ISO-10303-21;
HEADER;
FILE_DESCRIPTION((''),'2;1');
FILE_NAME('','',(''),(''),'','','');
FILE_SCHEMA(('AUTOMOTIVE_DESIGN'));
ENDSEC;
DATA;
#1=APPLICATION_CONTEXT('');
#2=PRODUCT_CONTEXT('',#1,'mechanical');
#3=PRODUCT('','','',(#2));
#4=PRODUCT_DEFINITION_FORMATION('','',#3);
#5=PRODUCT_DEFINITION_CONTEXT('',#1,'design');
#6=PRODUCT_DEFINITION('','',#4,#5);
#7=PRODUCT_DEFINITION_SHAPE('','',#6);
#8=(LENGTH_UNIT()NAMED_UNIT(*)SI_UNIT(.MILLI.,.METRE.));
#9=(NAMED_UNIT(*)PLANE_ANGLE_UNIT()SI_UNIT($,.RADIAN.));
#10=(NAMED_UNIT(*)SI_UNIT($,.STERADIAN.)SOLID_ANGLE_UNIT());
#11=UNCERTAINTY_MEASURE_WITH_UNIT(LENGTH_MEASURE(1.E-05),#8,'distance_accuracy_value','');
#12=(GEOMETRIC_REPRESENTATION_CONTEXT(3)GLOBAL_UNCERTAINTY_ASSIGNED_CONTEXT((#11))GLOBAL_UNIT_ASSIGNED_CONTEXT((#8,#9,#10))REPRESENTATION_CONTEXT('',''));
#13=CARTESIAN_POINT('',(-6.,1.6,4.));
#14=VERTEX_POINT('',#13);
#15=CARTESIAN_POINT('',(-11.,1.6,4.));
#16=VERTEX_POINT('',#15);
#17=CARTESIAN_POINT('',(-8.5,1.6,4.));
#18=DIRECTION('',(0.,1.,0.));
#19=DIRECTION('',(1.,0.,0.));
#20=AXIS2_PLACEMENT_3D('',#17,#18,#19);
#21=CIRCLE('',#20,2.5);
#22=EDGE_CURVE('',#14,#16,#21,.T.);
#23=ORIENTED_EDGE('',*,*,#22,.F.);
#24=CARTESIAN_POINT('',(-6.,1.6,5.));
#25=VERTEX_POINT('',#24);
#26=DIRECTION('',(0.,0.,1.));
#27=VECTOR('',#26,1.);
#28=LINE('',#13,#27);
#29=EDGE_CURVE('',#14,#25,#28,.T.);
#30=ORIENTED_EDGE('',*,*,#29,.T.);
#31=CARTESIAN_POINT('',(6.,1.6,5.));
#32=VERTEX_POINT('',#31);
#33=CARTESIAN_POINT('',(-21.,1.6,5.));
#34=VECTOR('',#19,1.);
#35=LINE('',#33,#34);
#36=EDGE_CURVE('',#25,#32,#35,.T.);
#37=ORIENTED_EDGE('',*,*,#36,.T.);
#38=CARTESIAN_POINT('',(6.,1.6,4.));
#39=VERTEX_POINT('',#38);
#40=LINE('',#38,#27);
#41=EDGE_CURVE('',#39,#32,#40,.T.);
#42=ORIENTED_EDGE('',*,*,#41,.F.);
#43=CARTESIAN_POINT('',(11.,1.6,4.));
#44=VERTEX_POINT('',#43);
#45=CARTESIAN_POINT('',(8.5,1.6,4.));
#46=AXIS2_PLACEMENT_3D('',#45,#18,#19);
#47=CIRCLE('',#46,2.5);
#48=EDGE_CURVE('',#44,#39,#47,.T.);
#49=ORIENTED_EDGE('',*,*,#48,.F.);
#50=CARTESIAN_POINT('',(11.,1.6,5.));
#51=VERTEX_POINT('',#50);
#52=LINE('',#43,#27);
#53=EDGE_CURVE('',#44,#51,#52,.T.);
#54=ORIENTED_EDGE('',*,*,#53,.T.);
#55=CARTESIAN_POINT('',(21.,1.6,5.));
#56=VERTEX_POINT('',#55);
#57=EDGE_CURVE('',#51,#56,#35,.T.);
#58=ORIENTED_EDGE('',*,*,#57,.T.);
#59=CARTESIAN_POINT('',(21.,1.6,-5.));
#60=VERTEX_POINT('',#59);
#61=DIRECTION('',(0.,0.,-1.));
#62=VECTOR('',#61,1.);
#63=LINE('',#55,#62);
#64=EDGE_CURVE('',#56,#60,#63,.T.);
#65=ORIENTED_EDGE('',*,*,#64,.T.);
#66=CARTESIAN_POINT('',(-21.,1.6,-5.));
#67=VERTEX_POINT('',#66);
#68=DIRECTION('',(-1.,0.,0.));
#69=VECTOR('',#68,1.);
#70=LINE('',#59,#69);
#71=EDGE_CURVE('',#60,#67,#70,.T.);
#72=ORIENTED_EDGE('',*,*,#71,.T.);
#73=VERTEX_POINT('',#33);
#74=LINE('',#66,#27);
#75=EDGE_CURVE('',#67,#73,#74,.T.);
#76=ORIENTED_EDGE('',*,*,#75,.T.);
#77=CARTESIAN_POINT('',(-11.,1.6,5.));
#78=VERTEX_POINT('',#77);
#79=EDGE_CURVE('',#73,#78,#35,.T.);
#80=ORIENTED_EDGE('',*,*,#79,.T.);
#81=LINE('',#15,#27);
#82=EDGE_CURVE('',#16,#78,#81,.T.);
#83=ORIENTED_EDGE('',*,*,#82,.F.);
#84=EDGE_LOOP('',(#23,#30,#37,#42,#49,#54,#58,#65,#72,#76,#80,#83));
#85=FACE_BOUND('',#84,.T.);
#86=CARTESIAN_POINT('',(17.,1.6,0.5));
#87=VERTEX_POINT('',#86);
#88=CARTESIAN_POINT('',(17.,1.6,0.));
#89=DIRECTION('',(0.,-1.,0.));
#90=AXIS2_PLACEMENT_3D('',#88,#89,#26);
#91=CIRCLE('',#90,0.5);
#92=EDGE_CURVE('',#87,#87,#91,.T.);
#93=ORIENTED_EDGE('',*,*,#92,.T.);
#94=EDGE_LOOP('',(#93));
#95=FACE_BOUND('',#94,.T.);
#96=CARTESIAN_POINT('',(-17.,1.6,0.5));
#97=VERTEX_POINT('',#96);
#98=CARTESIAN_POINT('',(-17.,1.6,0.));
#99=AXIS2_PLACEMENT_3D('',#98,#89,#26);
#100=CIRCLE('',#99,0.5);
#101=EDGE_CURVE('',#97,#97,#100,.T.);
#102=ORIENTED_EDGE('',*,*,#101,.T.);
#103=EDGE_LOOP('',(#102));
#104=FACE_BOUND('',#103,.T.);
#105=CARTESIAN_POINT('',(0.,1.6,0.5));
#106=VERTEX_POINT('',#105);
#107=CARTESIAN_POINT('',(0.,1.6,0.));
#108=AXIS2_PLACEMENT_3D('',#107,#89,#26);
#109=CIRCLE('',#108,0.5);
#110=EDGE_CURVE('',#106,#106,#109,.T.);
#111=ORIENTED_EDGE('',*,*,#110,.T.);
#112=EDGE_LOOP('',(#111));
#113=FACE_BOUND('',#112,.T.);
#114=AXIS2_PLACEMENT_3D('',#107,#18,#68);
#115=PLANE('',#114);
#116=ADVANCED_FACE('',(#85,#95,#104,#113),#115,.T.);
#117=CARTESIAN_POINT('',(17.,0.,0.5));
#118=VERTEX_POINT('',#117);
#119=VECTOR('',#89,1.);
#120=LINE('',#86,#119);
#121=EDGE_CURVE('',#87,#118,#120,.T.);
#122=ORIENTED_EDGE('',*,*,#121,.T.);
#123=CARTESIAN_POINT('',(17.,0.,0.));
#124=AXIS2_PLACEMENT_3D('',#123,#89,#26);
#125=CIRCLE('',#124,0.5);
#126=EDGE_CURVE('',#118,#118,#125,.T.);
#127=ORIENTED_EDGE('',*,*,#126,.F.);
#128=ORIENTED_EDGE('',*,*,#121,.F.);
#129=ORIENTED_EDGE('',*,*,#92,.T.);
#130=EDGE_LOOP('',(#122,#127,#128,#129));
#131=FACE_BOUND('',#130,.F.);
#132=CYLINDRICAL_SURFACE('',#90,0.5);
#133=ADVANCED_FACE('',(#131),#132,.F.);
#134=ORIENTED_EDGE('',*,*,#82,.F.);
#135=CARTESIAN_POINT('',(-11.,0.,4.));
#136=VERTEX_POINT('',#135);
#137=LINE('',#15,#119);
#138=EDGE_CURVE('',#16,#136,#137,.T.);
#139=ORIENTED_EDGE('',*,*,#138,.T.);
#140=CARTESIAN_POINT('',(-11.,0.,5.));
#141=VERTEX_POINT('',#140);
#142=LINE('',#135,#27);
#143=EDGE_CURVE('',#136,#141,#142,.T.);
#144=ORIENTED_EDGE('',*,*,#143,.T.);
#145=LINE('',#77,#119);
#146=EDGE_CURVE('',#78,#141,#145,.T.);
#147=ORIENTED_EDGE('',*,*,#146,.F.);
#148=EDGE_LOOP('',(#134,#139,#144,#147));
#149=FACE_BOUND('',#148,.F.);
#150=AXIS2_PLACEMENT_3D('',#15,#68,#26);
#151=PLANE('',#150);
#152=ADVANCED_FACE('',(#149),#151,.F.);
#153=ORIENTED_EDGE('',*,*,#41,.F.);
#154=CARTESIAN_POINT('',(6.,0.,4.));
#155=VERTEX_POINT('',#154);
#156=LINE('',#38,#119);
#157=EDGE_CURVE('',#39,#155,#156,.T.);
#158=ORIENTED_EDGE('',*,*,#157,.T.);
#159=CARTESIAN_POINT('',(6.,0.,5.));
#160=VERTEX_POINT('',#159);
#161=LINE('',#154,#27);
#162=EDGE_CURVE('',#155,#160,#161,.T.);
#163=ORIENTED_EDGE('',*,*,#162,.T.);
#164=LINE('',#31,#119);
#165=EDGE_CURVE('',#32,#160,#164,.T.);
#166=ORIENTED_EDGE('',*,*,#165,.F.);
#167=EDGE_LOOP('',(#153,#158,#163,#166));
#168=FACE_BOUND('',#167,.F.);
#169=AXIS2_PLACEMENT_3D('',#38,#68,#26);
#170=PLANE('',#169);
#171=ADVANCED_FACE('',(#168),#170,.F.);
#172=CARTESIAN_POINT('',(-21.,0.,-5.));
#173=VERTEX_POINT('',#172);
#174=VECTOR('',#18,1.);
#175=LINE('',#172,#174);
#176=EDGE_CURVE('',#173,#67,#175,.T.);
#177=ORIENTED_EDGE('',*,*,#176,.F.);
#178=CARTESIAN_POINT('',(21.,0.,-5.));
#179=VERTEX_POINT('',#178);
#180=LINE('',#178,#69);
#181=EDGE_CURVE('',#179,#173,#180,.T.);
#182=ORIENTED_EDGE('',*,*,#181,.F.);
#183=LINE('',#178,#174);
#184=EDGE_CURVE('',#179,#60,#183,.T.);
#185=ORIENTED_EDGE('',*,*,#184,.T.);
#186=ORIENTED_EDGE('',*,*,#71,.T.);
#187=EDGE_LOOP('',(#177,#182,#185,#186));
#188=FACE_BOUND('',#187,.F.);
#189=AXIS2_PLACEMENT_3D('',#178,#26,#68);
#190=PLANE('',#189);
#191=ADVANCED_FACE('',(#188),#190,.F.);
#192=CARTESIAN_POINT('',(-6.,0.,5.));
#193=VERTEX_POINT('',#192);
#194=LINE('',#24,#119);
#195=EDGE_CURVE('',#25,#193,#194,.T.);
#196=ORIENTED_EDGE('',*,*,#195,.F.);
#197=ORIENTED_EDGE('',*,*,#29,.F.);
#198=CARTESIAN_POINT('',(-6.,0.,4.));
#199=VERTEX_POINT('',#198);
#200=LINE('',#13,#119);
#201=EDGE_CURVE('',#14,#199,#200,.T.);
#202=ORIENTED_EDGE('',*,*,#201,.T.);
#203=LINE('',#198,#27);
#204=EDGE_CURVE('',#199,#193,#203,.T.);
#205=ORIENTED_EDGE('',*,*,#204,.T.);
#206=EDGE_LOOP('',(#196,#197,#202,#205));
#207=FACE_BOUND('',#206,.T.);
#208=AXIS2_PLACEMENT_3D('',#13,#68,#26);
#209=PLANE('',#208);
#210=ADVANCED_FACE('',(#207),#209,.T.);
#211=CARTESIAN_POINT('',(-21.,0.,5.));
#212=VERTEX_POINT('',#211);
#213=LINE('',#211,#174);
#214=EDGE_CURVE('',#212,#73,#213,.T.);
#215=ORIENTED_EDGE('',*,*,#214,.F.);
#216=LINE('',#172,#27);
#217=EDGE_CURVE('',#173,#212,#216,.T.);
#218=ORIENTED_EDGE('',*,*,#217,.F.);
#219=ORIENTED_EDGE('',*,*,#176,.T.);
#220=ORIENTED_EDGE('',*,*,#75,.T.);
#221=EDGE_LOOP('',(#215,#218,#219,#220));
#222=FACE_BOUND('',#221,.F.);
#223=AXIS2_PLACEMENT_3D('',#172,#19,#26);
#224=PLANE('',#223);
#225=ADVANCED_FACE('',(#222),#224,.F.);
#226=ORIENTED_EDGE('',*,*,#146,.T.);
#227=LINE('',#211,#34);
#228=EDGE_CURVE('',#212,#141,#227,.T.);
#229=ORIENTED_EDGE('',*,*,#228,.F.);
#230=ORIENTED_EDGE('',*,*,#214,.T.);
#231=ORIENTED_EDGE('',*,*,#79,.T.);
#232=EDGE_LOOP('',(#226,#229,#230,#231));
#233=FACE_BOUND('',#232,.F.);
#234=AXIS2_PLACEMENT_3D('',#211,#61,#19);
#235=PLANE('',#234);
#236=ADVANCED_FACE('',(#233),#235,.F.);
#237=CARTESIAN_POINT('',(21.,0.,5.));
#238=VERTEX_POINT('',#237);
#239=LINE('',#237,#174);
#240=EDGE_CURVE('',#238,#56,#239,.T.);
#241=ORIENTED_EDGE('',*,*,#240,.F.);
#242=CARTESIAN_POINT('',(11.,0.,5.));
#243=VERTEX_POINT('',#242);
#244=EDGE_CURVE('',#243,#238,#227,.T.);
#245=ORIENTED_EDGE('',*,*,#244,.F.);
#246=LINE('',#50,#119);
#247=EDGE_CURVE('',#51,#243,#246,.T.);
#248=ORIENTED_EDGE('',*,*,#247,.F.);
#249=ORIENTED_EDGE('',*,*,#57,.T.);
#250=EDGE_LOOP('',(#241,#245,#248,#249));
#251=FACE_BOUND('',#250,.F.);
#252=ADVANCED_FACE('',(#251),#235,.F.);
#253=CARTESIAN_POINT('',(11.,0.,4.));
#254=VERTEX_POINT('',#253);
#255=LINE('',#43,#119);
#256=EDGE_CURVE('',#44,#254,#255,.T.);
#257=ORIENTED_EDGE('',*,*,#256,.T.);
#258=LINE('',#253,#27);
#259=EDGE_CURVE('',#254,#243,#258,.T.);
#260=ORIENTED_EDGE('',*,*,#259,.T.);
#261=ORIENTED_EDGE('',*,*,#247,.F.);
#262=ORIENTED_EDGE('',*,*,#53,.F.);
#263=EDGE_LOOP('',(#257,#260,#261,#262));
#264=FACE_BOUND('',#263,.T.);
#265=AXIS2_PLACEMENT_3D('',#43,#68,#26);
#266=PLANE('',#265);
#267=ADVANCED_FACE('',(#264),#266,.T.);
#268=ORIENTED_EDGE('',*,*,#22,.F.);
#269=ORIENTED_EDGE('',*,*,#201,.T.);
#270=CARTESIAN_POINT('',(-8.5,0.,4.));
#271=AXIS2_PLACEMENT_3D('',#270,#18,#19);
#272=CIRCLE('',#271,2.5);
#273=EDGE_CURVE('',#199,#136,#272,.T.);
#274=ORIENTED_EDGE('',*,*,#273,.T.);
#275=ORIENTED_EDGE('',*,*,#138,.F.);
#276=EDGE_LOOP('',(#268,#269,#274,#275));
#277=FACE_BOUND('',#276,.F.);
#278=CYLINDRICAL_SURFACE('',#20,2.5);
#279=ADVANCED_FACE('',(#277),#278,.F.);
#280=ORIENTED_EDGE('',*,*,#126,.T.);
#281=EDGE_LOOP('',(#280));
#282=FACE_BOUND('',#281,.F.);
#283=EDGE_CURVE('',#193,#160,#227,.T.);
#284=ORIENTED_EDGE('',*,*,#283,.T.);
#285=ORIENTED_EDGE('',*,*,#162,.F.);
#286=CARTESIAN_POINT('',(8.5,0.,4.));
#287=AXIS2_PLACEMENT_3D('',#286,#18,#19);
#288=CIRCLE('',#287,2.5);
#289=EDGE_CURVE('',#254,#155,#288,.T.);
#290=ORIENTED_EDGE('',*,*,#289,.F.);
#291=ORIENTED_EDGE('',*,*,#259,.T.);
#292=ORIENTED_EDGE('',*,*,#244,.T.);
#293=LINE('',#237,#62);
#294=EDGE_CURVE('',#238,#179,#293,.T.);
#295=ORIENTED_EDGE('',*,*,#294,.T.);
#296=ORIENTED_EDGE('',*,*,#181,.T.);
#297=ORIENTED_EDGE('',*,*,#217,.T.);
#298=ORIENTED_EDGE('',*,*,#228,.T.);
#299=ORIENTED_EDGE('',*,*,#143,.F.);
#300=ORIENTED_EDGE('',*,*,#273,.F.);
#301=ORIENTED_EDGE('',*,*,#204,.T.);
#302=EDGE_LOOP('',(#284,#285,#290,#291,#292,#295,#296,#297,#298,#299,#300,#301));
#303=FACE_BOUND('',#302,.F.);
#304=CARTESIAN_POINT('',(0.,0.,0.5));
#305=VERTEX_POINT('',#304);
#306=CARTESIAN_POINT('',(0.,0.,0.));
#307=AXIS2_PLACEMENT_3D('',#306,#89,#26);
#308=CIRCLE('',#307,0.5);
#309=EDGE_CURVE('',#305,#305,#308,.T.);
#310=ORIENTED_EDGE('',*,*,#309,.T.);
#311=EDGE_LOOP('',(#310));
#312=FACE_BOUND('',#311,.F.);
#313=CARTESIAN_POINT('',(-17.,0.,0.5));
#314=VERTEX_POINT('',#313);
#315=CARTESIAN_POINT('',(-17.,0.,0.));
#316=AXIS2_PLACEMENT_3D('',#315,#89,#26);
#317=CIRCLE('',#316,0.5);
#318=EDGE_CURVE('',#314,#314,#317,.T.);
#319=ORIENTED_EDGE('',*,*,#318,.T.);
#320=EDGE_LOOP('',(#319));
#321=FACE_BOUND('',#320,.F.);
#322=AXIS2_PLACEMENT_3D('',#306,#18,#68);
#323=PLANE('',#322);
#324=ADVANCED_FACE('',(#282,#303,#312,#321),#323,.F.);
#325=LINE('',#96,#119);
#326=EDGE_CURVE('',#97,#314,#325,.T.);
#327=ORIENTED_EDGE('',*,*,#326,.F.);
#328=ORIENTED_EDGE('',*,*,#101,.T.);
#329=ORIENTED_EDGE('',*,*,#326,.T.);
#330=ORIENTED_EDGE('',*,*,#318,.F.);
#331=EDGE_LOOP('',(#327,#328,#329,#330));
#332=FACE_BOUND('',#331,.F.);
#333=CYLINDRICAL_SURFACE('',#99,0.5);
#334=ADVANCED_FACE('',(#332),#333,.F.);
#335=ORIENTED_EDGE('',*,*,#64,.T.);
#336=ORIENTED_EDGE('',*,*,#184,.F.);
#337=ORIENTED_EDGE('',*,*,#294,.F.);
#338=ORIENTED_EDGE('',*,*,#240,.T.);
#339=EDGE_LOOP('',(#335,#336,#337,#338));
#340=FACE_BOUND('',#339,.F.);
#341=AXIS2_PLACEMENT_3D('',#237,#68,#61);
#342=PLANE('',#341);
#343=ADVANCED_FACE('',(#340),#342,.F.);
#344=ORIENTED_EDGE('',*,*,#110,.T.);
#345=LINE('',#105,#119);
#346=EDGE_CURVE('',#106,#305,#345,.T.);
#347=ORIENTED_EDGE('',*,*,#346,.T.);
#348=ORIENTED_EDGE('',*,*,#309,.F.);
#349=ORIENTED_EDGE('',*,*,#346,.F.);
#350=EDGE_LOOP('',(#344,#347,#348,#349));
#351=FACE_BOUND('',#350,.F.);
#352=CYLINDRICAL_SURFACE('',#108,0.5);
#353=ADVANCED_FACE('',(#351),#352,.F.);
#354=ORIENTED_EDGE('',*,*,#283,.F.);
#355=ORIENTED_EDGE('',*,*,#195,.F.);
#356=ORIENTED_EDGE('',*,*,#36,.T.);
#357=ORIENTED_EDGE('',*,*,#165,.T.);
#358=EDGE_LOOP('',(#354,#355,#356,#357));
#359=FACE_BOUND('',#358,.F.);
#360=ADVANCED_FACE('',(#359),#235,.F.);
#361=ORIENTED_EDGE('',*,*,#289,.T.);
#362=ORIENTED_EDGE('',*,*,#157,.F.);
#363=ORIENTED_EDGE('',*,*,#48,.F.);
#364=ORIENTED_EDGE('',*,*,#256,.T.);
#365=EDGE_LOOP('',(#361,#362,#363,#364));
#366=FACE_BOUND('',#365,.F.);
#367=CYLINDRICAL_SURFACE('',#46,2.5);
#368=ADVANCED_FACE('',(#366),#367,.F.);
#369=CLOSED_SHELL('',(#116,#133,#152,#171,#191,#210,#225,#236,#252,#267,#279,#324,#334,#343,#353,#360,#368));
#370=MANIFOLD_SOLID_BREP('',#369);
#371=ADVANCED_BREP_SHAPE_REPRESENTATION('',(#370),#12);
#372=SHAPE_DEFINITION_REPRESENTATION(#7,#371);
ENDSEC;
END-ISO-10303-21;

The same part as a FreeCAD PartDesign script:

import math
import FreeCAD as App
import Part
import Sketcher
from FreeCAD import Vector
Q = App.Units.Quantity


def add_polygon(sketch, points):
    """Adds a closed chain of lines whose ends are joined by coincident constraints."""
    first, n = sketch.GeometryCount, len(points)
    for a, b in zip(points, points[1:] + points[:1]):
        sketch.addGeometry(Part.LineSegment(App.Vector(*a, 0), App.Vector(*b, 0)), False)
    for i in range(n):
        sketch.addConstraint(Sketcher.Constraint("Coincident", first + i, 2, first + (i + 1) % n, 1))

doc = App.newDocument("Part")
params = doc.addObject("Spreadsheet::Sheet", "Params")
for row, (alias, value) in enumerate([
    ("sketch1_width", "42 mm"),
    ("sketch1_height", "10 mm"),
    ("pad1_length", "1.6 mm"),
    ("sketch2_diameter", "1 mm"),
    ("hole_diameter", "1 mm"),
    ("sketch3_radius", "2.5 mm"),
    ("sketch3_height", "1 mm"),
    ("pocket1_length", "1.6 mm"),
], start=1):
    params.set(f"A{row}", alias)
    params.set(f"B{row}", "=" + value)
    params.setAlias(f"B{row}", alias)

body = doc.addObject("PartDesign::Body", "Body")

# Sketch on XZ plane
sketch1 = doc.addObject("Sketcher::SketchObject", "Sketch")
body.addObject(sketch1)
sketch1.AttachmentSupport = (doc.XZ_Plane, [""])
sketch1.MapMode = "FlatFace"
add_polygon(sketch1, [(-21, -5), (-21, 5), (21, 5), (21, -5)])  # lines 0-3
sketch1.addConstraint(Sketcher.Constraint("Vertical", 0))
sketch1.addConstraint(Sketcher.Constraint("Horizontal", 1))
sketch1.addConstraint(Sketcher.Constraint("Vertical", 2))
sketch1.addConstraint(Sketcher.Constraint("Horizontal", 3))
sketch1.addConstraint(Sketcher.Constraint("Symmetric", 0, 2, 2, 2, -1, 1))
sketch1.addConstraint(Sketcher.Constraint("DistanceX", 1, 1, 1, 2, Q("42 mm")))
sketch1.addConstraint(Sketcher.Constraint("DistanceY", 0, 1, 0, 2, Q("10 mm")))
sketch1.setExpression("Constraints[9]", "Params.sketch1_width")
sketch1.setExpression("Constraints[10]", "Params.sketch1_height")
pad1 = doc.addObject("PartDesign::Pad", "Pad")
body.addObject(pad1)
pad1.Profile = sketch1
pad1.setExpression("Length", "Params.pad1_length")
pad1.Reversed = True

# Sketch on XZ plane
sketch2 = doc.addObject("Sketcher::SketchObject", "Sketch001")
body.addObject(sketch2)
sketch2.AttachmentSupport = (doc.XZ_Plane, [""])
sketch2.MapMode = "FlatFace"
sketch2.AttachmentOffset = App.Placement(Vector(0, 0, -1.6), App.Rotation())
sketch2.addGeometry(Part.Circle(Vector(-17, 0, 0), Vector(0, 0, 1), 0.5), False)
sketch2.addGeometry(Part.Circle(Vector(0, 0, 0), Vector(0, 0, 1), 0.5), False)
sketch2.addGeometry(Part.Circle(Vector(17, 0, 0), Vector(0, 0, 1), 0.5), False)
sketch2.addConstraint(Sketcher.Constraint("Coincident", 1, 3, -1, 1))
sketch2.addConstraint(Sketcher.Constraint("Equal", 0, 1))
sketch2.addConstraint(Sketcher.Constraint("Equal", 1, 2))
sketch2.addConstraint(Sketcher.Constraint("Symmetric", 0, 3, 2, 3, -1, 1))
sketch2.addConstraint(Sketcher.Constraint("PointOnObject", 0, 3, -1))
sketch2.addConstraint(Sketcher.Constraint("Diameter", 0, Q("1 mm")))
sketch2.addConstraint(Sketcher.Constraint("DistanceX", 0, 3, -1, 1, Q("17 mm")))
sketch2.setExpression("Constraints[5]", "Params.sketch2_diameter")
doc.recompute()
hole = doc.addObject("PartDesign::Hole", "Hole")
body.addObject(hole)
hole.Profile = sketch2
hole.ThreadType = "None"
hole.setExpression("Diameter", "Params.hole_diameter")
hole.DepthType = "ThroughAll"
hole.Reversed = True

# Sketch on XZ plane
sketch3 = doc.addObject("Sketcher::SketchObject", "Sketch002")
body.addObject(sketch3)
sketch3.AttachmentSupport = (doc.XZ_Plane, [""])
sketch3.MapMode = "FlatFace"
sketch3.AttachmentOffset = App.Placement(Vector(0, 0, -1.6), App.Rotation())
sketch3.addGeometry(Part.LineSegment(Vector(-11, 4, 0), Vector(-11, 5, 0)), False)
sketch3.addGeometry(Part.LineSegment(Vector(-11, 5, 0), Vector(-6, 5, 0)), False)
sketch3.addGeometry(Part.LineSegment(Vector(-6, 5, 0), Vector(-6, 4, 0)), False)
sketch3.addGeometry(Part.ArcOfCircle(Part.Circle(Vector(-8.5, 4, 0), Vector(0, 0, 1), 2.5), math.radians(180), math.radians(360)), False)
sketch3.addGeometry(Part.LineSegment(Vector(6, 4, 0), Vector(6, 5, 0)), False)
sketch3.addGeometry(Part.LineSegment(Vector(6, 5, 0), Vector(11, 5, 0)), False)
sketch3.addGeometry(Part.LineSegment(Vector(11, 5, 0), Vector(11, 4, 0)), False)
sketch3.addGeometry(Part.ArcOfCircle(Part.Circle(Vector(8.5, 4, 0), Vector(0, 0, 1), 2.5), math.radians(180), math.radians(360)), False)
sketch3.addConstraint(Sketcher.Constraint("Coincident", 0, 2, 1, 1))
sketch3.addConstraint(Sketcher.Constraint("Coincident", 1, 2, 2, 1))
sketch3.addConstraint(Sketcher.Constraint("Tangent", 2, 2, 3, 2))
sketch3.addConstraint(Sketcher.Constraint("Tangent", 3, 1, 0, 1))
sketch3.addConstraint(Sketcher.Constraint("Coincident", 4, 2, 5, 1))
sketch3.addConstraint(Sketcher.Constraint("Coincident", 5, 2, 6, 1))
sketch3.addConstraint(Sketcher.Constraint("Tangent", 6, 2, 7, 2))
sketch3.addConstraint(Sketcher.Constraint("Tangent", 7, 1, 4, 1))
sketch3.addConstraint(Sketcher.Constraint("Vertical", 0))
sketch3.addConstraint(Sketcher.Constraint("Horizontal", 1))
sketch3.addConstraint(Sketcher.Constraint("Vertical", 2))
sketch3.addConstraint(Sketcher.Constraint("Vertical", 4))
sketch3.addConstraint(Sketcher.Constraint("Horizontal", 5))
sketch3.addConstraint(Sketcher.Constraint("Vertical", 6))
sketch3.addConstraint(Sketcher.Constraint("Equal", 3, 7))
sketch3.addConstraint(Sketcher.Constraint("Symmetric", 3, 3, 7, 3, -2))
sketch3.addConstraint(Sketcher.Constraint("Horizontal", 1, 2, 4, 2))
sketch3.addConstraint(Sketcher.Constraint("Radius", 3, Q("2.5 mm")))
sketch3.addConstraint(Sketcher.Constraint("DistanceY", 0, 1, 0, 2, Q("1 mm")))
sketch3.addConstraint(Sketcher.Constraint("DistanceY", -1, 1, 0, 2, Q("5 mm")))
sketch3.addConstraint(Sketcher.Constraint("DistanceX", 3, 3, 7, 3, Q("17 mm")))
sketch3.setExpression("Constraints[17]", "Params.sketch3_radius")
sketch3.setExpression("Constraints[18]", "Params.sketch3_height")
pocket1 = doc.addObject("PartDesign::Pocket", "Pocket")
body.addObject(pocket1)
pocket1.Profile = sketch3
pocket1.setExpression("Length", "Params.pocket1_length")
pocket1.Reversed = True

doc.recompute()
